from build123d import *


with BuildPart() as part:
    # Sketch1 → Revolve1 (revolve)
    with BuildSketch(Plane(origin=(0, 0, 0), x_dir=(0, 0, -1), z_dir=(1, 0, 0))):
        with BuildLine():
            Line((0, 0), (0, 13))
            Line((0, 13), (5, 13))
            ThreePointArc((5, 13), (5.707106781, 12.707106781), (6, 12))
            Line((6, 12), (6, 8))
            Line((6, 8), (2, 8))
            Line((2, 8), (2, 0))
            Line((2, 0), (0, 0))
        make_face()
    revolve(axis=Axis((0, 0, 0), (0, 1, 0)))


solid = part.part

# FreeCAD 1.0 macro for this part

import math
import FreeCAD as App
import Part
import Sketcher
from FreeCAD import Vector
Q = App.Units.Quantity

doc = App.newDocument("Part")
body = doc.addObject("PartDesign::Body", "Body")

sketch1 = doc.addObject("Sketcher::SketchObject", "Sketch")
body.addObject(sketch1)
sketch1.AttachmentSupport = (doc.YZ_Plane, [""])
sketch1.MapMode = "FlatFace"
sketch1.addGeometry([
    Part.LineSegment(Vector(13, 0, 0), Vector(0, 0, 0)),
    Part.LineSegment(Vector(0, 0, 0), Vector(0, -2, 0)),
    Part.LineSegment(Vector(0, -2, 0), Vector(8, -2, 0)),
    Part.LineSegment(Vector(8, -2, 0), Vector(8, -6, 0)),
    Part.LineSegment(Vector(8, -6, 0), Vector(12, -6, 0)),
    Part.ArcOfCircle(Part.Circle(Vector(12, -5, 0), Vector(0, 0, 1), 1), math.radians(-90), math.radians(0)),
    Part.LineSegment(Vector(13, -5, 0), Vector(13, 0, 0)),
], False)
sketch1.addConstraint([
    Sketcher.Constraint("Coincident", 0, 2, 1, 1),
    Sketcher.Constraint("Coincident", 1, 2, 2, 1),
    Sketcher.Constraint("Coincident", 2, 2, 3, 1),
    Sketcher.Constraint("Coincident", 3, 2, 4, 1),
    Sketcher.Constraint("Tangent", 4, 2, 5, 1),
    Sketcher.Constraint("Tangent", 5, 2, 6, 1),
    Sketcher.Constraint("Coincident", 6, 2, 0, 1),
    Sketcher.Constraint("Horizontal", 0),
    Sketcher.Constraint("Vertical", 1),
    Sketcher.Constraint("Horizontal", 2),
    Sketcher.Constraint("Vertical", 3),
    Sketcher.Constraint("Horizontal", 4),
    Sketcher.Constraint("Vertical", 6),
    Sketcher.Constraint("Coincident", 0, 2, -1, 1),
    Sketcher.Constraint("Equal", 4, 3),
    Sketcher.Constraint("Radius", 5, Q("1 mm")),
    Sketcher.Constraint("DistanceX", 0, 2, 0, 1, Q("13 mm")),
    Sketcher.Constraint("DistanceX", 2, 1, 2, 2, Q("8 mm")),
    Sketcher.Constraint("DistanceY", 1, 2, 1, 1, Q("2 mm")),
])
revolution = doc.addObject("PartDesign::Revolution", "Revolution")
body.addObject(revolution)
revolution.Profile = sketch1
revolution.ReferenceAxis = (sketch1, ["H_Axis"])
revolution.Angle = 360

doc.recompute()
